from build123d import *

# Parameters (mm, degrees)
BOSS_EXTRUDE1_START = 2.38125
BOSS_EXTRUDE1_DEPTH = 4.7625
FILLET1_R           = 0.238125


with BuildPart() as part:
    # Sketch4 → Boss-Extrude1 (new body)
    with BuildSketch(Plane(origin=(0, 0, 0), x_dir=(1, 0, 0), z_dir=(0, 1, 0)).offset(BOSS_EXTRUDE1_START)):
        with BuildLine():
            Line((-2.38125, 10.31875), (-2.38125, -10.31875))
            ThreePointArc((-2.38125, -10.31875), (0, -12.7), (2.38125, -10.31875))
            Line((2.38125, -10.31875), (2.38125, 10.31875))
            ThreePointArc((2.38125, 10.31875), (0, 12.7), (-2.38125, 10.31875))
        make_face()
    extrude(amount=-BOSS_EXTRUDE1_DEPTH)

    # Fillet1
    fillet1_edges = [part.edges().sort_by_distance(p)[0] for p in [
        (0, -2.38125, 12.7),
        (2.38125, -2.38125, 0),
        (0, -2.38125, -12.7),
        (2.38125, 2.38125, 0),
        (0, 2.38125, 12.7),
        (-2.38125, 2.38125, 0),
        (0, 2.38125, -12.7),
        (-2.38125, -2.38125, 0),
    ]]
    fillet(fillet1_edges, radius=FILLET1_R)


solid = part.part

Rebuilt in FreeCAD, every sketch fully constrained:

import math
import FreeCAD as App
import Part
import Sketcher

V = App.Vector
Q = App.Units.Quantity


def edges_at(feature, points):
    """Names of the edges that pass closest to the given points."""
    edges = feature.Shape.Edges
    near = lambda p: min(range(len(edges)), key=lambda i: edges[i].distToShape(Part.Vertex(*p))[0])
    return sorted({f"Edge{near(p) + 1}" for p in points})

doc = App.newDocument("Part")
body = doc.addObject("PartDesign::Body", "Body")

sketch1 = body.newObject("Sketcher::SketchObject", "Sketch")
sketch1.AttachmentSupport = (doc.getObject("XZ_Plane"), [""])
sketch1.MapMode = "FlatFace"
sketch1.AttachmentOffset = App.Placement(V(0, 0, -0.09375 * 25.4), App.Rotation())
sketch1.addGeometry(Part.LineSegment(V(-2.4, -10.3, 0), V(-2.4, 10.3, 0)), False)
sketch1.addGeometry(Part.ArcOfCircle(Part.Circle(V(0, 10.3, 0), V(0, 0, 1), 2.4), math.radians(0), math.radians(180)), False)
sketch1.addGeometry(Part.LineSegment(V(2.4, 10.3, 0), V(2.4, -10.3, 0)), False)
sketch1.addGeometry(Part.ArcOfCircle(Part.Circle(V(0, -10.3, 0), V(0, 0, 1), 2.4), math.radians(180), math.radians(360)), False)
sketch1.addConstraint(Sketcher.Constraint("Tangent", 0, 2, 1, 2))
sketch1.addConstraint(Sketcher.Constraint("Tangent", 1, 1, 2, 1))
sketch1.addConstraint(Sketcher.Constraint("Tangent", 2, 2, 3, 2))
sketch1.addConstraint(Sketcher.Constraint("Tangent", 3, 1, 0, 1))
sketch1.addConstraint(Sketcher.Constraint("Vertical", 0))
sketch1.addConstraint(Sketcher.Constraint("Vertical", 2))
sketch1.addConstraint(Sketcher.Constraint("Symmetric", 1, 3, 3, 3, -1, 1))
sketch1.addConstraint(Sketcher.Constraint("Radius", 1, Q("0.09375 in")))
sketch1.addConstraint(Sketcher.Constraint("DistanceY", 0, 1, 0, 2, Q("0.8125 in")))
pad1 = body.newObject("PartDesign::Pad", "Pad")
pad1.Profile = sketch1
pad1.Length = Q("0.1875 in")
doc.recompute()

fillet = body.newObject("PartDesign::Fillet", "Fillet")
fillet.Base = (pad1, edges_at(pad1, [
    (0, -2.381, 12.7),
    (2.381, -2.381, 0),
    (0, -2.381, -12.7),
    (2.381, 2.381, 0),
    (0, 2.381, 12.7),
    (-2.381, 2.381, 0),
    (0, 2.381, -12.7),
    (-2.381, -2.381, 0),
]))
fillet.Radius = 0.238125

doc.recompute()
